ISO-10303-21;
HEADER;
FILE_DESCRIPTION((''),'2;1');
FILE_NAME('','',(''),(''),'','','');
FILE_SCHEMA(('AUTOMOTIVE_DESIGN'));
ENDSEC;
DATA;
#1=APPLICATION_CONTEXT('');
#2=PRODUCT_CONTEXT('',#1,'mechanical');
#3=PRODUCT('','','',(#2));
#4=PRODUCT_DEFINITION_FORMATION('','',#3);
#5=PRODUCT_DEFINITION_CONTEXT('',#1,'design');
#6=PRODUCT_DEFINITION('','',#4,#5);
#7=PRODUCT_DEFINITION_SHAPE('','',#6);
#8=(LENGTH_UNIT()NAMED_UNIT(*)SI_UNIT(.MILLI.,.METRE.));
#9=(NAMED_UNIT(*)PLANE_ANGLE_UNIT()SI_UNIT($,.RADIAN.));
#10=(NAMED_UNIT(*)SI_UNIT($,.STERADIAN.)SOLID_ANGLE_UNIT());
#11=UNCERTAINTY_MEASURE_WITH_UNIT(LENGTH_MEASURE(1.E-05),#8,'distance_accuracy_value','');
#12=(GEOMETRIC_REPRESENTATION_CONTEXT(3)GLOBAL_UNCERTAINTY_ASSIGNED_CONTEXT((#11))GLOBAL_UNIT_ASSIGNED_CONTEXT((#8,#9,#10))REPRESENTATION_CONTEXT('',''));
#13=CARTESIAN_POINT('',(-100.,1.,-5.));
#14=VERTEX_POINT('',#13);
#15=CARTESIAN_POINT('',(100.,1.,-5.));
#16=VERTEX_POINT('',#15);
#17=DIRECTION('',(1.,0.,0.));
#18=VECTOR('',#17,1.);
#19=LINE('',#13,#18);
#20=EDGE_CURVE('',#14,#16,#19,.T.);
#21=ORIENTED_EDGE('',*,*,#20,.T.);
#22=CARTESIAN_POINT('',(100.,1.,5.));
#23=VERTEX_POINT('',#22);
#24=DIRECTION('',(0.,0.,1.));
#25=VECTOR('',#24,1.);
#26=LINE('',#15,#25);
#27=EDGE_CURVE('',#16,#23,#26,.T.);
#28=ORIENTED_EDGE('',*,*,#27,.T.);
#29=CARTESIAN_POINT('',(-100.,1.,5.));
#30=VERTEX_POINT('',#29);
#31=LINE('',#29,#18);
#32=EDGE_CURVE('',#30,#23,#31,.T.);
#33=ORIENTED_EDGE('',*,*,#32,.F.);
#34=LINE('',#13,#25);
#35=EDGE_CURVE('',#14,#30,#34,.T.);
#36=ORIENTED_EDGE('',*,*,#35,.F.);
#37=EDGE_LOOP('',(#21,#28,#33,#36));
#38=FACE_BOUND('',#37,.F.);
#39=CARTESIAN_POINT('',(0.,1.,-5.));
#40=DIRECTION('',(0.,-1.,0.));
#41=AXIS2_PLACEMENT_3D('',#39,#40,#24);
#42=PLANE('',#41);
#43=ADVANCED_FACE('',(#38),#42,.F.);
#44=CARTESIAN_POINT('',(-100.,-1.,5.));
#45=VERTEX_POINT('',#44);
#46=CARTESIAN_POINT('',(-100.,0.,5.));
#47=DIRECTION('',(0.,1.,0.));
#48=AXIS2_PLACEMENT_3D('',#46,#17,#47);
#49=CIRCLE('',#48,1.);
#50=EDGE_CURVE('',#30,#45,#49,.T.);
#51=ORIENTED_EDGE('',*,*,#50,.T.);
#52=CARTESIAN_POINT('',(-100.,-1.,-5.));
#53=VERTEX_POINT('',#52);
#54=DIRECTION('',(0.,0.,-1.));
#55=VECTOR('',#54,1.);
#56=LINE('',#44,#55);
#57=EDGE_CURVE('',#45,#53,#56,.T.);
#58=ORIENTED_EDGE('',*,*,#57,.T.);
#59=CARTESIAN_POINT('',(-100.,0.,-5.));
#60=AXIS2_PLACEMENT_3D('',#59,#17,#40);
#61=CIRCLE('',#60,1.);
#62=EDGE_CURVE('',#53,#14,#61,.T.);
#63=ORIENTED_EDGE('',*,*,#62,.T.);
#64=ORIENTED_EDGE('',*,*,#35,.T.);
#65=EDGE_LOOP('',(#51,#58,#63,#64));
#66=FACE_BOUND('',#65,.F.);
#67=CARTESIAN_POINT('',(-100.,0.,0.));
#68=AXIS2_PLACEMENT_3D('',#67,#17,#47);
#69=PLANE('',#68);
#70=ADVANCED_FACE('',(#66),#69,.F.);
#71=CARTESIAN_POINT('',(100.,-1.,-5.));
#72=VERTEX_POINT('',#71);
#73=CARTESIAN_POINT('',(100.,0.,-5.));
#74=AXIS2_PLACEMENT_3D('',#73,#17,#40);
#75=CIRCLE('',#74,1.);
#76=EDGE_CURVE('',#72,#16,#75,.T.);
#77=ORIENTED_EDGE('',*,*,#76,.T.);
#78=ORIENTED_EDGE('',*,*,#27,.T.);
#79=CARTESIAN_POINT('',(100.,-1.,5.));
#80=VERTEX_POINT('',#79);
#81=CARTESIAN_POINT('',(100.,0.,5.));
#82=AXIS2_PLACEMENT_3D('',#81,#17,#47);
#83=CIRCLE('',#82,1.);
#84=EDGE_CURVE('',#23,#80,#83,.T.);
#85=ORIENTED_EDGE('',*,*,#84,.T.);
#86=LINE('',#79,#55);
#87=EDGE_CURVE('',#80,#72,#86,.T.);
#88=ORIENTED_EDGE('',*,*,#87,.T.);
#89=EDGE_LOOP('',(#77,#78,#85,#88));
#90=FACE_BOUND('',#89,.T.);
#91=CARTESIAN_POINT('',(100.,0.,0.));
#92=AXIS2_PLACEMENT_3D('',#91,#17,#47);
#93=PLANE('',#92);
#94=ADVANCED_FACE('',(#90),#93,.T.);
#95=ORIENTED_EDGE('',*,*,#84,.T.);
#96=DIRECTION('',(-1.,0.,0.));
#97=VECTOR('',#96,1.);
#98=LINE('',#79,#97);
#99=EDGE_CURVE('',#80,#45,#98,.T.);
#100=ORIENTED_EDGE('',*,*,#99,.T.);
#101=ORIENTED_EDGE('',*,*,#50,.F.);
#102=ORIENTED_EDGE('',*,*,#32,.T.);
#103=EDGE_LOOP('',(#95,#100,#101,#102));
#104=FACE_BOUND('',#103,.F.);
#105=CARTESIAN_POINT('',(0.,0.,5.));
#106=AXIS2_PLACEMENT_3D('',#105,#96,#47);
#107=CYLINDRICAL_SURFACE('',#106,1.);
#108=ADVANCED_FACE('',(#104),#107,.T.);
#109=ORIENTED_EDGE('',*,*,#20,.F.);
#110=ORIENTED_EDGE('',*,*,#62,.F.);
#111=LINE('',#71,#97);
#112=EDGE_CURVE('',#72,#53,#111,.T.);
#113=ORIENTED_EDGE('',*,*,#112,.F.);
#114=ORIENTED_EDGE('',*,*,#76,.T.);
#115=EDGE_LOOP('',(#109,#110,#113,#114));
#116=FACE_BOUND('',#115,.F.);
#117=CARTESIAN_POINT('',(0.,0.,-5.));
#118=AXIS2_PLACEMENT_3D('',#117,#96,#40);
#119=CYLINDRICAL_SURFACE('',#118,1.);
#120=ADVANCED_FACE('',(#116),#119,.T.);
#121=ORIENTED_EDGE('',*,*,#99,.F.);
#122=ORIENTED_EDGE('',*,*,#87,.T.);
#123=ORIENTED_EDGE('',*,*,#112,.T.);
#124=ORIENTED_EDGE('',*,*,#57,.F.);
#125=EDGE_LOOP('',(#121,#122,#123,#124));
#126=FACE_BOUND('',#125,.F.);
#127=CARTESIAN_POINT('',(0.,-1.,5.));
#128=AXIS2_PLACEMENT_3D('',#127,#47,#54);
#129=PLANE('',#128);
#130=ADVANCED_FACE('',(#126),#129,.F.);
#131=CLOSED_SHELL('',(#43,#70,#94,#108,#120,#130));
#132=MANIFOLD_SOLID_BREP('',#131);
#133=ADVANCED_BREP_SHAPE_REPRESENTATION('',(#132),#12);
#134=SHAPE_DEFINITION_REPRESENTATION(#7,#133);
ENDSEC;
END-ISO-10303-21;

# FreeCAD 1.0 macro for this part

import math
import FreeCAD as App
import Part
import Sketcher

doc = App.newDocument("Part")
params = doc.addObject("Spreadsheet::Sheet", "Params")
for row, (alias, value) in enumerate([
    ("sketch1_radius", "1 mm"),
    ("sketch1_height", "10 mm"),
    ("pad1_length", "200 mm"),
], start=1):
    params.set(f"A{row}", alias)
    params.set(f"B{row}", "=" + value)
    params.setAlias(f"B{row}", alias)

body = doc.addObject("PartDesign::Body", "Body")

# Sketch on YZ plane
sketch1 = body.newObject("Sketcher::SketchObject", "Sketch")
sketch1.AttachmentSupport = (doc.getObject("YZ_Plane"), [""])
sketch1.MapMode = "FlatFace"
sketch1.addGeometry(Part.ArcOfCircle(Part.Circle(App.Vector(0, -5, 0), App.Vector(0, 0, 1), 1), math.radians(180), math.radians(360)), False)
sketch1.addGeometry(Part.LineSegment(App.Vector(1, -5, 0), App.Vector(1, 5, 0)), False)
sketch1.addGeometry(Part.ArcOfCircle(Part.Circle(App.Vector(0, 5, 0), App.Vector(0, 0, 1), 1), math.radians(0), math.radians(180)), False)
sketch1.addGeometry(Part.LineSegment(App.Vector(-1, 5, 0), App.Vector(-1, -5, 0)), False)
sketch1.addConstraint(Sketcher.Constraint("Tangent", 0, 2, 1, 1))
sketch1.addConstraint(Sketcher.Constraint("Tangent", 1, 2, 2, 1))
sketch1.addConstraint(Sketcher.Constraint("Tangent", 2, 2, 3, 1))
sketch1.addConstraint(Sketcher.Constraint("Tangent", 3, 2, 0, 1))
sketch1.addConstraint(Sketcher.Constraint("Vertical", 1))
sketch1.addConstraint(Sketcher.Constraint("Vertical", 3))
sketch1.addConstraint(Sketcher.Constraint("Symmetric", 0, 3, 2, 3, -1, 1))
sketch1.addConstraint(Sketcher.Constraint("Radius", 0, 1.0))
sketch1.addConstraint(Sketcher.Constraint("DistanceY", 1, 1, 1, 2, 10.0))
sketch1.setExpression("Constraints[7]", "Params.sketch1_radius")
sketch1.setExpression("Constraints[8]", "Params.sketch1_height")
pad1 = body.newObject("PartDesign::Pad", "Pad")
pad1.Profile = sketch1
pad1.setExpression("Length", "Params.pad1_length")
pad1.Midplane = True

doc.recompute()
